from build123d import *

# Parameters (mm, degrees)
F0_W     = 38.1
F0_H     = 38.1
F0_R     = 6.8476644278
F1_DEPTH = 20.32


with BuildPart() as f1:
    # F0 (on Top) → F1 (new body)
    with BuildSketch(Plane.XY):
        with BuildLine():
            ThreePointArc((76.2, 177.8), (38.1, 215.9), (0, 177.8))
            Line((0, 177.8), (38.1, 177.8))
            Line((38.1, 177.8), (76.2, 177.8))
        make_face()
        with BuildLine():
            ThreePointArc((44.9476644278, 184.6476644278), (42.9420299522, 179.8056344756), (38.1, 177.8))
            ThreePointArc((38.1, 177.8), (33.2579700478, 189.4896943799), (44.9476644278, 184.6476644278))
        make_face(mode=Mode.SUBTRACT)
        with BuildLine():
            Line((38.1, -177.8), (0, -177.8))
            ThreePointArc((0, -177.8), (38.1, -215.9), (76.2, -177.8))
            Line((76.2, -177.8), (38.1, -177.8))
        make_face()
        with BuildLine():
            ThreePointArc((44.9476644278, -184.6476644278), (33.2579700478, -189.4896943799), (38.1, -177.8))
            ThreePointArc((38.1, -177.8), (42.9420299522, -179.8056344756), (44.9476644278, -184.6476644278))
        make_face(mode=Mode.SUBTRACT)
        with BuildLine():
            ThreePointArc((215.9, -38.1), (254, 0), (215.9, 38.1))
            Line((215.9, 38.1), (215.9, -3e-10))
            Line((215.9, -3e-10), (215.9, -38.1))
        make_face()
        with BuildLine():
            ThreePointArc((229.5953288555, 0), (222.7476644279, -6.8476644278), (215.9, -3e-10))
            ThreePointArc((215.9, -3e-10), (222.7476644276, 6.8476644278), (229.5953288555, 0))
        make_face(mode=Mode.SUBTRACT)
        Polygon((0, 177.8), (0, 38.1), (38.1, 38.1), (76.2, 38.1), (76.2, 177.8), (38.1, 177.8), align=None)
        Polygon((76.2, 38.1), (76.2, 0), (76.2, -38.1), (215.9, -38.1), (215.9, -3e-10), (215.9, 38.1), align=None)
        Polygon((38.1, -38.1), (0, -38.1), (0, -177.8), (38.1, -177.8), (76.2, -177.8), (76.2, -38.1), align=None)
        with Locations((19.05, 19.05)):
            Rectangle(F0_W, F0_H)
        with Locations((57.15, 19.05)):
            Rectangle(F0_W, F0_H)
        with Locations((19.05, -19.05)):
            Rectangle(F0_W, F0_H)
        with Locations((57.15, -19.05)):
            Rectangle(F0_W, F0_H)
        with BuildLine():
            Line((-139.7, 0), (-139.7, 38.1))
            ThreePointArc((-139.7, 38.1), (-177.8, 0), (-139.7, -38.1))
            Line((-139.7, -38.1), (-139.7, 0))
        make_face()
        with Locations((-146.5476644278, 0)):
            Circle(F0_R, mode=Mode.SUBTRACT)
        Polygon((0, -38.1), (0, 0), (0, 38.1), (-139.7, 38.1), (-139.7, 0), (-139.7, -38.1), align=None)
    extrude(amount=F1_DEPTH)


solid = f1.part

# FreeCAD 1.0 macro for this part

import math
import FreeCAD as App
import Part
import Sketcher

V = App.Vector
Q = App.Units.Quantity

doc = App.newDocument("Part")
params = doc.addObject("Spreadsheet::Sheet", "Params")
for row, (alias, value) in enumerate([
    ("sketch1_radius", "1.5 in"),
    ("sketch1_width", "5.5 in"),
    ("pad1_length", "0.8 in"),
], start=1):
    params.set(f"A{row}", alias)
    params.set(f"B{row}", "=" + value)
    params.setAlias(f"B{row}", alias)

body = doc.addObject("PartDesign::Body", "Body")

# Sketch on XY plane
sketch1 = doc.addObject("Sketcher::SketchObject", "Sketch")
body.addObject(sketch1)
sketch1.AttachmentSupport = (doc.XY_Plane, [""])
sketch1.MapMode = "FlatFace"
sketch1.addGeometry([
    Part.LineSegment(V(76.2, -177.8, 0), V(76.2, -38.1, 0)),  # 0
    Part.LineSegment(V(76.2, -38.1, 0), V(215.9, -38.1, 0)),  # 1
    Part.ArcOfCircle(Part.Circle(V(215.9, 0, 0), V(0, 0, 1), 38.1), math.radians(-90), math.radians(90)),  # 2
    Part.LineSegment(V(215.9, 38.1, 0), V(76.2, 38.1, 0)),  # 3
    Part.LineSegment(V(76.2, 38.1, 0), V(76.2, 177.8, 0)),  # 4
    Part.ArcOfCircle(Part.Circle(V(38.1, 177.8, 0), V(0, 0, 1), 38.1), math.radians(0), math.radians(180)),  # 5
    Part.LineSegment(V(0, 177.8, 0), V(0, 38.1, 0)),  # 6
    Part.LineSegment(V(0, 38.1, 0), V(-139.7, 38.1, 0)),  # 7
    Part.ArcOfCircle(Part.Circle(V(-139.7, 0, 0), V(0, 0, 1), 38.1), math.radians(90), math.radians(270)),  # 8
    Part.LineSegment(V(-139.7, -38.1, 0), V(0, -38.1, 0)),  # 9
    Part.LineSegment(V(0, -38.1, 0), V(0, -177.8, 0)),  # 10
    Part.ArcOfCircle(Part.Circle(V(38.1, -177.8, 0), V(0, 0, 1), 38.1), math.radians(180), math.radians(360)),  # 11
    Part.ArcOfCircle(Part.Circle(V(38.1, -184.647664, 0), V(0, 0, 1), 6.847664), math.radians(0), math.radians(90)),  # 12
    Part.ArcOfCircle(Part.Circle(V(38.1, -184.647664, 0), V(0, 0, 1), 6.847664), math.radians(90), math.radians(360)),  # 13
    Part.ArcOfCircle(Part.Circle(V(38.1, 184.647664, 0), V(0, 0, 1), 6.847664), math.radians(-90), math.radians(0)),  # 14
    Part.ArcOfCircle(Part.Circle(V(38.1, 184.647664, 0), V(0, 0, 1), 6.847664), math.radians(0), math.radians(270)),  # 15
    Part.ArcOfCircle(Part.Circle(V(222.747664, 0, 0), V(0, 0, 1), 6.847664), math.radians(0), math.radians(180)),  # 16
    Part.ArcOfCircle(Part.Circle(V(222.747664, 0, 0), V(0, 0, 1), 6.847664), math.radians(180), math.radians(360)),  # 17
    Part.Circle(V(-146.547664, 0, 0), V(0, 0, 1), 6.847664),  # 18
], False)
sketch1.addConstraint([
    Sketcher.Constraint("Coincident", 0, 2, 1, 1),
    Sketcher.Constraint("Tangent", 1, 2, 2, 1),
    Sketcher.Constraint("Tangent", 2, 2, 3, 1),
    Sketcher.Constraint("Coincident", 3, 2, 4, 1),
    Sketcher.Constraint("Tangent", 4, 2, 5, 1),
    Sketcher.Constraint("Tangent", 5, 2, 6, 1),
    Sketcher.Constraint("Coincident", 6, 2, 7, 1),
    Sketcher.Constraint("Tangent", 7, 2, 8, 1),
    Sketcher.Constraint("Tangent", 8, 2, 9, 1),
    Sketcher.Constraint("Coincident", 9, 2, 10, 1),
    Sketcher.Constraint("Tangent", 10, 2, 11, 1),
    Sketcher.Constraint("Tangent", 11, 2, 0, 1),
    Sketcher.Constraint("Tangent", 12, 1, 13, 2),
    Sketcher.Constraint("Coincident", 13, 1, 12, 2),
    Sketcher.Constraint("Tangent", 14, 1, 15, 2),
    Sketcher.Constraint("Coincident", 15, 1, 14, 2),
    Sketcher.Constraint("Tangent", 16, 1, 17, 2),
    Sketcher.Constraint("Coincident", 17, 1, 16, 2),
    Sketcher.Constraint("Vertical", 0),
    Sketcher.Constraint("Horizontal", 1),
    Sketcher.Constraint("Horizontal", 3),
    Sketcher.Constraint("Vertical", 4),
    Sketcher.Constraint("Vertical", 6),
    Sketcher.Constraint("Horizontal", 7),
    Sketcher.Constraint("Horizontal", 9),
    Sketcher.Constraint("Vertical", 10),
    Sketcher.Constraint("Coincident", 13, 1, 11, 3),
    Sketcher.Constraint("Coincident", 14, 1, 5, 3),
    Sketcher.Constraint("Coincident", 17, 1, 2, 3),
    Sketcher.Constraint("Equal", 2, 5),
    Sketcher.Constraint("Equal", 5, 8),
    Sketcher.Constraint("Equal", 8, 11),
    Sketcher.Constraint("Equal", 13, 14),
    Sketcher.Constraint("Equal", 15, 16),
    Sketcher.Constraint("Equal", 17, 18),
    Sketcher.Constraint("Symmetric", 6, 2, 9, 2, -1, 1),
    Sketcher.Constraint("Symmetric", 5, 3, 11, 3, -1),
    Sketcher.Constraint("Symmetric", 12, 1, 15, 1, -1),
    Sketcher.Constraint("PointOnObject", 2, 3, -1),
    Sketcher.Constraint("PointOnObject", 16, 3, -1),
    Sketcher.Constraint("PointOnObject", 18, 3, -1),
    Sketcher.Constraint("PointOnObject", 16, 1, -1),
    Sketcher.Constraint("Horizontal", 13, 3, 12, 1),
    Sketcher.Constraint("Vertical", 11, 3, 12, 3),
    Sketcher.Constraint("Equal", 3, 7),
    Sketcher.Constraint("Equal", 9, 0),
    Sketcher.Constraint("Radius", 2, Q("1.5 in")),
    Sketcher.Constraint("DistanceX", 1, 1, 1, 2, Q("5.5 in")),
    Sketcher.Constraint("Diameter", 18, 13.695329),
    Sketcher.Constraint("DistanceX", 18, 3, -1, 1, 146.547664),
])
sketch1.setExpression("Constraints[46]", "Params.sketch1_radius")
sketch1.setExpression("Constraints[47]", "Params.sketch1_width")
pad1 = doc.addObject("PartDesign::Pad", "Pad")
body.addObject(pad1)
pad1.Profile = sketch1
pad1.setExpression("Length", "Params.pad1_length")

doc.recompute()
